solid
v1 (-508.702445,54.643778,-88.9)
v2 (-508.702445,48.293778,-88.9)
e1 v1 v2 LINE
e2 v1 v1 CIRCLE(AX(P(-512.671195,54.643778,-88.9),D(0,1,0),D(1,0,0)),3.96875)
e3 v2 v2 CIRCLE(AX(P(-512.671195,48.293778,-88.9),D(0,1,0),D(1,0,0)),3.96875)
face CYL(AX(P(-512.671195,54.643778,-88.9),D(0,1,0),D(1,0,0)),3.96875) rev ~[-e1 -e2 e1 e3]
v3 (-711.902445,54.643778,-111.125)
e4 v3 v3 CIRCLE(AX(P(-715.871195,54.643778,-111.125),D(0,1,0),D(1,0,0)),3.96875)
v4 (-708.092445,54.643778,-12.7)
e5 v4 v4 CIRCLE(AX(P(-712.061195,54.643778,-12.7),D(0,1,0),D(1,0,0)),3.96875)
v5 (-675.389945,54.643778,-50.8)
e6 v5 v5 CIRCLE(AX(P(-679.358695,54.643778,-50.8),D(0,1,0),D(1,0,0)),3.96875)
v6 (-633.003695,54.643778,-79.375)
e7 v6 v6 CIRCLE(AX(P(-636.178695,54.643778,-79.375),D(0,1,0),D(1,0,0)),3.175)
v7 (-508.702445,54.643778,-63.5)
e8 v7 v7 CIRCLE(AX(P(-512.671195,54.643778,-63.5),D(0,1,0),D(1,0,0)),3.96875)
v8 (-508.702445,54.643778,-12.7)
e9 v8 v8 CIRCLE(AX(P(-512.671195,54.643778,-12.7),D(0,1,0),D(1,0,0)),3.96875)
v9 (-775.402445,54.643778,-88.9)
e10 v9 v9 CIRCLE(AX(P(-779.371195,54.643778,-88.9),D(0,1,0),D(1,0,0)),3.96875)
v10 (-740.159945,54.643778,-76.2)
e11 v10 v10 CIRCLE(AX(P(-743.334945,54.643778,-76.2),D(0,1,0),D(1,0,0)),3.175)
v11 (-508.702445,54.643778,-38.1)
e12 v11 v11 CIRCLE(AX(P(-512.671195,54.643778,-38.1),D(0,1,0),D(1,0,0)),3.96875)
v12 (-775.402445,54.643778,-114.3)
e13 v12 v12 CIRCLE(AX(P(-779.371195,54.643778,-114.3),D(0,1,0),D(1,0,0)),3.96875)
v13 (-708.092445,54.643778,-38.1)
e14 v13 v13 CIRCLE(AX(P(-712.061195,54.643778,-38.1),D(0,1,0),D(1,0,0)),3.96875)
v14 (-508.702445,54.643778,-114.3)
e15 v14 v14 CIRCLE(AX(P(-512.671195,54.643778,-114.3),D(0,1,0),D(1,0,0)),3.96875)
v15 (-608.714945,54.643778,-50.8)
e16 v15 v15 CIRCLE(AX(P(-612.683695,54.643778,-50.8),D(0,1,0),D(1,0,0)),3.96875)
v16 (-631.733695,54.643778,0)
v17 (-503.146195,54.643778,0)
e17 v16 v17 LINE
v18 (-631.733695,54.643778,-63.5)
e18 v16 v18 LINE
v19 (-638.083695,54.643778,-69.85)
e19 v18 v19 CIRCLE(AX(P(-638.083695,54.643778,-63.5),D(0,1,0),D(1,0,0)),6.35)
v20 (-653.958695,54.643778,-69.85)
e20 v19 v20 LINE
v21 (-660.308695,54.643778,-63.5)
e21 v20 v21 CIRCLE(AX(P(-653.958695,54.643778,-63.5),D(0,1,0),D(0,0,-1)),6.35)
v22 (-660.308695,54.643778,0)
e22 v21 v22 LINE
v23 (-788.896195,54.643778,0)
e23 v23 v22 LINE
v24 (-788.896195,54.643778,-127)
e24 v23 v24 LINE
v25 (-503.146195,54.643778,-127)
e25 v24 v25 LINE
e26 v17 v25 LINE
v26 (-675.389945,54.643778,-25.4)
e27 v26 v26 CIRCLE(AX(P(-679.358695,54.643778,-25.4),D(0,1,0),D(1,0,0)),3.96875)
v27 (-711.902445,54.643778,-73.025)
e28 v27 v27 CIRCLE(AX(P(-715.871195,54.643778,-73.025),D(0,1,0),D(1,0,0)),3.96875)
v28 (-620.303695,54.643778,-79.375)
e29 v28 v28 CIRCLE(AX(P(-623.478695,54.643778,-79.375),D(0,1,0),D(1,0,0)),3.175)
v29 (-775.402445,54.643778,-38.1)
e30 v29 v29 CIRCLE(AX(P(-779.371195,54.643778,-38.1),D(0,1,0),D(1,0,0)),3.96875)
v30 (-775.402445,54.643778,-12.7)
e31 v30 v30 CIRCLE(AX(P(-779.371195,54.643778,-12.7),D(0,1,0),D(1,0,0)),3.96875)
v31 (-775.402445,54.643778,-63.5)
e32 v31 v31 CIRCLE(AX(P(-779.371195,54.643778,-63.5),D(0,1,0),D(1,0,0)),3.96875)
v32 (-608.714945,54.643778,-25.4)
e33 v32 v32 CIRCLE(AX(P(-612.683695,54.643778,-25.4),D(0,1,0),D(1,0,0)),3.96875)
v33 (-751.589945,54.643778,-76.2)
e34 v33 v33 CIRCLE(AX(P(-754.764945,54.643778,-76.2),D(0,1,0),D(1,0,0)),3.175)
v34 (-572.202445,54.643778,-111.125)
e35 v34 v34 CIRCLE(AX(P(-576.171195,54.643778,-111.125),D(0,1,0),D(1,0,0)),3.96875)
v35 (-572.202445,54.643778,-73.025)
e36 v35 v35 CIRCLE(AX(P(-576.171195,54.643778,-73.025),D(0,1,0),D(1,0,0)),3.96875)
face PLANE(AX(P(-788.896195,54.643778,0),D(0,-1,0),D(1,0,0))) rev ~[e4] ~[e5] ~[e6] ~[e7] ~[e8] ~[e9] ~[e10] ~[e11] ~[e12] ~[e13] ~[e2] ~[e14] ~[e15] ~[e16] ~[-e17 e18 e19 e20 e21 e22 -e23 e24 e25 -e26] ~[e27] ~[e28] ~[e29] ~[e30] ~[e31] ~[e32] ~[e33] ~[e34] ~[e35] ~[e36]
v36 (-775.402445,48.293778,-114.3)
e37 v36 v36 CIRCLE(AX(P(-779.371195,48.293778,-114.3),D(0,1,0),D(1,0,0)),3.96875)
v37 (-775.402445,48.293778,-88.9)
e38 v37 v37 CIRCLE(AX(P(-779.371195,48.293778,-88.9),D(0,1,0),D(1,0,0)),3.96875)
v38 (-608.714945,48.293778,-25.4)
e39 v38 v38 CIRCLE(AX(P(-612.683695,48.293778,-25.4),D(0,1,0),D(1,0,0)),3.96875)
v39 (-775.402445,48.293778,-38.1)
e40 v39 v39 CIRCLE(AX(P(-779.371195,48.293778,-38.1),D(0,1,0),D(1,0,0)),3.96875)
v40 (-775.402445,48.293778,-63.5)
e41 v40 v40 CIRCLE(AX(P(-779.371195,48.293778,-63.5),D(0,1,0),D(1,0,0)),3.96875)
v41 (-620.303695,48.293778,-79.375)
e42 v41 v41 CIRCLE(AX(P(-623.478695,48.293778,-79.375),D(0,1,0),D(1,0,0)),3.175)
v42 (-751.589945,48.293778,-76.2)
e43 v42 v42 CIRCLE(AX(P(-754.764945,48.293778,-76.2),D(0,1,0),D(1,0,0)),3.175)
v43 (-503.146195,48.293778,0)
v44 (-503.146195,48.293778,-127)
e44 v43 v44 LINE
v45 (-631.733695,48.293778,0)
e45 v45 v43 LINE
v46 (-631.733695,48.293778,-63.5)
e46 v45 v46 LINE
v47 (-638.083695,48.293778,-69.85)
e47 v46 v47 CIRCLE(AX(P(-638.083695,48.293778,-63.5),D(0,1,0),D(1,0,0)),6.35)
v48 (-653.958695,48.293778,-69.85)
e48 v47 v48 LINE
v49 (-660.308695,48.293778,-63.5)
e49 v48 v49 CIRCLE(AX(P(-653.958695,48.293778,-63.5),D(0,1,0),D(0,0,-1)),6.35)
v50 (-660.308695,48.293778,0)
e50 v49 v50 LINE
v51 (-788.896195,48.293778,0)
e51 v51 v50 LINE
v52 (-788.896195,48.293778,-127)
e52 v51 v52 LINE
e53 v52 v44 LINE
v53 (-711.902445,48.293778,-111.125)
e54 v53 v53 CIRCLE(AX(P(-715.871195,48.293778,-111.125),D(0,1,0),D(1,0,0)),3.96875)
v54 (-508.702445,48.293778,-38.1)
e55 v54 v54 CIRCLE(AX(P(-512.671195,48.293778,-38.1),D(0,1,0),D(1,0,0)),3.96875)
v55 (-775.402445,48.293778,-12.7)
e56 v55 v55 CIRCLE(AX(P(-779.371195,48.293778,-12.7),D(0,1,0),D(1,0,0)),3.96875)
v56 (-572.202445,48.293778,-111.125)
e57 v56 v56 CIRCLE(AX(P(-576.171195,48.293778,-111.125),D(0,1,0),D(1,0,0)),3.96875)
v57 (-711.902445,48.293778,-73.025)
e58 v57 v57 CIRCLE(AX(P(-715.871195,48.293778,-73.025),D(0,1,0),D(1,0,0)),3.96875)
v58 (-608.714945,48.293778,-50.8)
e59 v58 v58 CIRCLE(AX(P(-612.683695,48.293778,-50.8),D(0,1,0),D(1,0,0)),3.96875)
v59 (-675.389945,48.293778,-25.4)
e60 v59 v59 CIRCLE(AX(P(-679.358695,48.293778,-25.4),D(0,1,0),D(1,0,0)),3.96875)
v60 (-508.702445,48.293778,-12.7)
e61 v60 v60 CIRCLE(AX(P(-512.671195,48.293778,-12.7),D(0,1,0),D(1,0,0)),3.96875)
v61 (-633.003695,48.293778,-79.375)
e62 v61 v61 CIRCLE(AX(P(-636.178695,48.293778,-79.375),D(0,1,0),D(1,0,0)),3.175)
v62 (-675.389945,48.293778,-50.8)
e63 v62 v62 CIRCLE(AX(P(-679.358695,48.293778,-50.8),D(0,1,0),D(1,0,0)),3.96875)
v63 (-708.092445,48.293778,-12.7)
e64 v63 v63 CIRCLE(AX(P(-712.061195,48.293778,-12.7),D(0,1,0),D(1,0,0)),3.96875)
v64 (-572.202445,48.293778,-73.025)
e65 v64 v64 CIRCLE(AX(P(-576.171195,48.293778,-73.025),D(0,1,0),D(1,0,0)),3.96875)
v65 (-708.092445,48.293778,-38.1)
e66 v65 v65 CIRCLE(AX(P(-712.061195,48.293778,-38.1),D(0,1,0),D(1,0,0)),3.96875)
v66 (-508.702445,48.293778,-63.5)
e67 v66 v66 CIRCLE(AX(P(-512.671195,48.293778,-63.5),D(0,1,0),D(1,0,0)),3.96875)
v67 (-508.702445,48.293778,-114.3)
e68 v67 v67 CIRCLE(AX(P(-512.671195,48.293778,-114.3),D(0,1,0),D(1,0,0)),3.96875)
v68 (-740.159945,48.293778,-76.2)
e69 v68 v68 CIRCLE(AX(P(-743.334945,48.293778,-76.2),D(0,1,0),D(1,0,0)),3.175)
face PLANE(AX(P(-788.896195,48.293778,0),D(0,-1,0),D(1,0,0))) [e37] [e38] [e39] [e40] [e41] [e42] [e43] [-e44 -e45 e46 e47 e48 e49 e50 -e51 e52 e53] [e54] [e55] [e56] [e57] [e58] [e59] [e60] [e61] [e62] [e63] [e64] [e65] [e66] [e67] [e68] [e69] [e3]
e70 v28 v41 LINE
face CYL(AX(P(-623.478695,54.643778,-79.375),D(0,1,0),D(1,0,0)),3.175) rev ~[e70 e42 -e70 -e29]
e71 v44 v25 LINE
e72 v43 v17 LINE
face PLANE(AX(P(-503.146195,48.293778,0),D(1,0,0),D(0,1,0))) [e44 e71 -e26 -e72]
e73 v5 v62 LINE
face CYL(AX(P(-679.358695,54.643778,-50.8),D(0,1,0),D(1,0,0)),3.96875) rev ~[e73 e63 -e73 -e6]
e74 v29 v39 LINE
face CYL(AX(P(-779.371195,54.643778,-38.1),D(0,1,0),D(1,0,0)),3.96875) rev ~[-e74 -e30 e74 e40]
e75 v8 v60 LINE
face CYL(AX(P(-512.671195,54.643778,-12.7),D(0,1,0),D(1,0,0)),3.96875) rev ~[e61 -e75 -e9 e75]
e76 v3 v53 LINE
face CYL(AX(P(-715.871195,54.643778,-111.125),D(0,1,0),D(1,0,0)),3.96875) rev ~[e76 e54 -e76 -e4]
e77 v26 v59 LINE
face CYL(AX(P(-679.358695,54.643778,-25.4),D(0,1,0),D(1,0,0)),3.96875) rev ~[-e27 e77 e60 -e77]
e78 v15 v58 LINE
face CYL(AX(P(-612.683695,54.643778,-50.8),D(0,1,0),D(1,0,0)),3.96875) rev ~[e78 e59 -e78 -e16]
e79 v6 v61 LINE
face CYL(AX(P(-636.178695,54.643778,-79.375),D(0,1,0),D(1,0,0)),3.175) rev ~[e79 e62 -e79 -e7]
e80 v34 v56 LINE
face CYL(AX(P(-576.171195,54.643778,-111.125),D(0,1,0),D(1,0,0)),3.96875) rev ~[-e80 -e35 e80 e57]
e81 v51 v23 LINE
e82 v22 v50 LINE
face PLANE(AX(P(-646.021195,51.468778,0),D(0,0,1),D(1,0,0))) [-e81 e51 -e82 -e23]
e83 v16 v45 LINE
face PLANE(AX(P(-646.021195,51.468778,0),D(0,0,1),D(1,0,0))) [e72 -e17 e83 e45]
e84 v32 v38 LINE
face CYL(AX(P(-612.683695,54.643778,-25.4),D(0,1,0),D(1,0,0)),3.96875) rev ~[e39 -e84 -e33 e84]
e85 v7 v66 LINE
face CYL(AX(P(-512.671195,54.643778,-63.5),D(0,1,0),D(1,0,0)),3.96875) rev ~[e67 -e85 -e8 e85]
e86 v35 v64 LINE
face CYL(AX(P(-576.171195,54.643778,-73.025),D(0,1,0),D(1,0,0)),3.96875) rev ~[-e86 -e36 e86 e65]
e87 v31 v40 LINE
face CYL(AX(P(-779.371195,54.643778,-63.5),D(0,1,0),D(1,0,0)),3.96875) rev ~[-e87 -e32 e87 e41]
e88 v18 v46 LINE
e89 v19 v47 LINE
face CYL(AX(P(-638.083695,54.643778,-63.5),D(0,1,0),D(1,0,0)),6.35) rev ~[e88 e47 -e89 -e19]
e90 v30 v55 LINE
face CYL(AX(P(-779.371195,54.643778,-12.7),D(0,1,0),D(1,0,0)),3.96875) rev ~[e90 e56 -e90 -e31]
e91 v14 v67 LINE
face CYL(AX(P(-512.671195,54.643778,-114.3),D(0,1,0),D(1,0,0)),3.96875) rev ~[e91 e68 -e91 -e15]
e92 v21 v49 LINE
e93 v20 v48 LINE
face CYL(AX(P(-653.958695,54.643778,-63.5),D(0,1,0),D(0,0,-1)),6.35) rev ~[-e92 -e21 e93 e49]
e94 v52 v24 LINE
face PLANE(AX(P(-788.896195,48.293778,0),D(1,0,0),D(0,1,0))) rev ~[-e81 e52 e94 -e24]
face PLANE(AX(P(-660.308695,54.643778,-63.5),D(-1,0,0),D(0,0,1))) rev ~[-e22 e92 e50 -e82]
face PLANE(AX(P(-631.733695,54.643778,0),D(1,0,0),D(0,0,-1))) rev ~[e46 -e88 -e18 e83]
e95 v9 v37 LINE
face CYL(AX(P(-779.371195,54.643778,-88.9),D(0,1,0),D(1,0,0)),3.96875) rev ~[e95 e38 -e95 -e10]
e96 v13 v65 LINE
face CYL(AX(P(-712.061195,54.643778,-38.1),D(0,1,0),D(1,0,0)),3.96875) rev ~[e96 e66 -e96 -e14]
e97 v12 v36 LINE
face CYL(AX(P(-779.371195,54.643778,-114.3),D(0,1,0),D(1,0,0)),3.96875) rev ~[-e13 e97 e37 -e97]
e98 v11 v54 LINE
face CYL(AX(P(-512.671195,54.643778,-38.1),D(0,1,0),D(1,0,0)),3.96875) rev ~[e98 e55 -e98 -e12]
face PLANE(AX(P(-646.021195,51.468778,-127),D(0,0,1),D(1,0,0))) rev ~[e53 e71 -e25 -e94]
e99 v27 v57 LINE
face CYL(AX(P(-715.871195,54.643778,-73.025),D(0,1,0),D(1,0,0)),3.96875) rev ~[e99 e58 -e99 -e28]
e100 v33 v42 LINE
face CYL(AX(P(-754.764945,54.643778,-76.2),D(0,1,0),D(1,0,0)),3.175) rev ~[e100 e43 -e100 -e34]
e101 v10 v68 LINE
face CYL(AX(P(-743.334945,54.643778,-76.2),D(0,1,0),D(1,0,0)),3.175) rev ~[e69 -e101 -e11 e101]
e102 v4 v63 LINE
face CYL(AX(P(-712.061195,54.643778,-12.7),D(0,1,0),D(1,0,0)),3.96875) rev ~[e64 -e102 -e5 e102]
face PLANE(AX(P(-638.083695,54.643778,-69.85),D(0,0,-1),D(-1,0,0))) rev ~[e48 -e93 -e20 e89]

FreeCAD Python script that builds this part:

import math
import FreeCAD as App
import Part
import Sketcher

V = App.Vector
Q = App.Units.Quantity

doc = App.newDocument("Part")
body = doc.addObject("PartDesign::Body", "Body")

# Sketch on XY plane
sketch1 = body.newObject("Sketcher::SketchObject", "Sketch")
sketch1.AttachmentSupport = (doc.getObject("XY_Plane"), [""])
sketch1.MapMode = "FlatFace"
sketch1.addGeometry(Part.LineSegment(V(-788.896195, 54.643778, 0), V(-788.896195, 48.293778, 0)), False)
sketch1.addGeometry(Part.LineSegment(V(-788.896195, 48.293778, 0), V(-503.146195, 48.293778, 0)), False)
sketch1.addGeometry(Part.LineSegment(V(-503.146195, 48.293778, 0), V(-503.146195, 54.643778, 0)), False)
sketch1.addGeometry(Part.LineSegment(V(-503.146195, 54.643778, 0), V(-788.896195, 54.643778, 0)), False)
sketch1.addConstraint(Sketcher.Constraint("Coincident", 0, 2, 1, 1))
sketch1.addConstraint(Sketcher.Constraint("Coincident", 1, 2, 2, 1))
sketch1.addConstraint(Sketcher.Constraint("Coincident", 2, 2, 3, 1))
sketch1.addConstraint(Sketcher.Constraint("Coincident", 3, 2, 0, 1))
sketch1.addConstraint(Sketcher.Constraint("Vertical", 0))
sketch1.addConstraint(Sketcher.Constraint("Horizontal", 1))
sketch1.addConstraint(Sketcher.Constraint("Vertical", 2))
sketch1.addConstraint(Sketcher.Constraint("Horizontal", 3))
sketch1.addConstraint(Sketcher.Constraint("DistanceX", 1, 1, 1, 2, Q("11.25 in")))
sketch1.addConstraint(Sketcher.Constraint("DistanceY", 0, 2, 0, 1, Q("0.25 in")))
sketch1.addConstraint(Sketcher.Constraint("DistanceY", -1, 1, 0, 2, Q("48.293778 mm")))
sketch1.addConstraint(Sketcher.Constraint("DistanceX", 0, 2, -1, 1, Q("788.896195 mm")))
pad1 = body.newObject("PartDesign::Pad", "Pad")
pad1.Profile = sketch1
pad1.Length = Q("5 in")
pad1.Reversed = True

# Sketch on XZ plane
sketch2 = body.newObject("Sketcher::SketchObject", "Sketch001")
sketch2.AttachmentSupport = (doc.getObject("XZ_Plane"), [""])
sketch2.MapMode = "FlatFace"
sketch2.AttachmentOffset = App.Placement(V(0, 0, -54.643778), App.Rotation())
sketch2.addGeometry(Part.LineSegment(V(-638.083695, -69.85, 0), V(-653.958695, -69.85, 0)), False)
sketch2.addGeometry(Part.ArcOfCircle(Part.Circle(V(-653.958695, -63.5, 0), V(0, 0, 1), 6.35), math.radians(180), math.radians(270)), False)
sketch2.addGeometry(Part.LineSegment(V(-660.308695, -63.5, 0), V(-660.308695, 0, 0)), False)
sketch2.addGeometry(Part.LineSegment(V(-660.308695, 0, 0), V(-631.733695, 0, 0)), False)
sketch2.addGeometry(Part.LineSegment(V(-631.733695, 0, 0), V(-631.733695, -63.5, 0)), False)
sketch2.addGeometry(Part.ArcOfCircle(Part.Circle(V(-638.083695, -63.5, 0), V(0, 0, 1), 6.35), math.radians(-90), math.radians(0)), False)
sketch2.addConstraint(Sketcher.Constraint("Tangent", 0, 2, 1, 2))
sketch2.addConstraint(Sketcher.Constraint("Tangent", 1, 1, 2, 1))
sketch2.addConstraint(Sketcher.Constraint("Coincident", 2, 2, 3, 1))
sketch2.addConstraint(Sketcher.Constraint("Coincident", 3, 2, 4, 1))
sketch2.addConstraint(Sketcher.Constraint("Tangent", 4, 2, 5, 2))
sketch2.addConstraint(Sketcher.Constraint("Tangent", 5, 1, 0, 1))
sketch2.addConstraint(Sketcher.Constraint("Horizontal", 0))
sketch2.addConstraint(Sketcher.Constraint("Vertical", 2))
sketch2.addConstraint(Sketcher.Constraint("Horizontal", 3))
sketch2.addConstraint(Sketcher.Constraint("Vertical", 4))
sketch2.addConstraint(Sketcher.Constraint("Equal", 1, 5))
sketch2.addConstraint(Sketcher.Constraint("PointOnObject", 2, 2, -1))
sketch2.addConstraint(Sketcher.Constraint("Radius", 1, Q("0.25 in")))
sketch2.addConstraint(Sketcher.Constraint("DistanceY", 2, 1, 2, 2, Q("2.5 in")))
sketch2.addConstraint(Sketcher.Constraint("DistanceX", 0, 2, 0, 1, Q("0.625 in")))
sketch2.addConstraint(Sketcher.Constraint("DistanceX", 1, 3, -1, 1, Q("653.958695 mm")))
pocket1 = body.newObject("PartDesign::Pocket", "Pocket")
pocket1.Profile = sketch2
pocket1.Length = Q("0.25 in")
pocket1.Reversed = True

# Sketch on XZ plane
sketch3 = body.newObject("Sketcher::SketchObject", "Sketch002")
sketch3.AttachmentSupport = (doc.getObject("XZ_Plane"), [""])
sketch3.MapMode = "FlatFace"
sketch3.AttachmentOffset = App.Placement(V(0, 0, -54.643778), App.Rotation())
sketch3.addGeometry(Part.Circle(V(-612.683695, -25.4, 0), V(0, 0, 1), 3.96875), False)
sketch3.addConstraint(Sketcher.Constraint("Diameter", 0, Q("0.3125 in")))
sketch3.addConstraint(Sketcher.Constraint("DistanceY", 0, 3, -1, 1, Q("1 in")))
sketch3.addConstraint(Sketcher.Constraint("DistanceX", 0, 3, -1, 1, Q("612.683695 mm")))
pocket2 = body.newObject("PartDesign::Pocket", "Pocket001")
pocket2.Profile = sketch3
pocket2.Type = "UpToFirst"
pocket2.Reversed = True

# Sketch on XZ plane
sketch4 = body.newObject("Sketcher::SketchObject", "Sketch003")
sketch4.AttachmentSupport = (doc.getObject("XZ_Plane"), [""])
sketch4.MapMode = "FlatFace"
sketch4.AttachmentOffset = App.Placement(V(0, 0, -54.643778), App.Rotation())
sketch4.addGeometry(Part.Circle(V(-612.683695, -50.8, 0), V(0, 0, 1), 3.96875), False)
sketch4.addConstraint(Sketcher.Constraint("Diameter", 0, Q("0.3125 in")))
sketch4.addConstraint(Sketcher.Constraint("DistanceY", 0, 3, -1, 1, Q("2 in")))
sketch4.addConstraint(Sketcher.Constraint("DistanceX", 0, 3, -1, 1, Q("612.683695 mm")))
pocket3 = body.newObject("PartDesign::Pocket", "Pocket002")
pocket3.Profile = sketch4
pocket3.Type = "UpToFirst"
pocket3.Reversed = True

# Sketch on XZ plane
sketch5 = body.newObject("Sketcher::SketchObject", "Sketch004")
sketch5.AttachmentSupport = (doc.getObject("XZ_Plane"), [""])
sketch5.MapMode = "FlatFace"
sketch5.AttachmentOffset = App.Placement(V(0, 0, -54.643778), App.Rotation())
sketch5.addGeometry(Part.Circle(V(-679.358695, -50.8, 0), V(0, 0, 1), 3.96875), False)
sketch5.addConstraint(Sketcher.Constraint("Diameter", 0, Q("0.3125 in")))
sketch5.addConstraint(Sketcher.Constraint("DistanceY", 0, 3, -1, 1, Q("2 in")))
sketch5.addConstraint(Sketcher.Constraint("DistanceX", 0, 3, -1, 1, Q("679.358695 mm")))
pocket4 = body.newObject("PartDesign::Pocket", "Pocket003")
pocket4.Profile = sketch5
pocket4.Type = "UpToFirst"
pocket4.Reversed = True

# Sketch on XZ plane
sketch6 = body.newObject("Sketcher::SketchObject", "Sketch005")
sketch6.AttachmentSupport = (doc.getObject("XZ_Plane"), [""])
sketch6.MapMode = "FlatFace"
sketch6.AttachmentOffset = App.Placement(V(0, 0, -54.643778), App.Rotation())
sketch6.addGeometry(Part.Circle(V(-679.358695, -25.4, 0), V(0, 0, 1), 3.96875), False)
sketch6.addConstraint(Sketcher.Constraint("Diameter", 0, Q("0.3125 in")))
sketch6.addConstraint(Sketcher.Constraint("DistanceY", 0, 3, -1, 1, Q("1 in")))
sketch6.addConstraint(Sketcher.Constraint("DistanceX", 0, 3, -1, 1, Q("679.358695 mm")))
pocket5 = body.newObject("PartDesign::Pocket", "Pocket004")
pocket5.Profile = sketch6
pocket5.Type = "UpToFirst"
pocket5.Reversed = True

# Sketch on XZ plane
sketch7 = body.newObject("Sketcher::SketchObject", "Sketch006")
sketch7.AttachmentSupport = (doc.getObject("XZ_Plane"), [""])
sketch7.MapMode = "FlatFace"
sketch7.AttachmentOffset = App.Placement(V(0, 0, -54.643778), App.Rotation())
sketch7.addGeometry(Part.Circle(V(-712.061195, -12.7, 0), V(0, 0, 1), 3.96875), False)
sketch7.addConstraint(Sketcher.Constraint("Diameter", 0, Q("0.3125 in")))
sketch7.addConstraint(Sketcher.Constraint("DistanceY", 0, 3, -1, 1, Q("0.5 in")))
sketch7.addConstraint(Sketcher.Constraint("DistanceX", 0, 3, -1, 1, Q("712.061195 mm")))
pocket6 = body.newObject("PartDesign::Pocket", "Pocket005")
pocket6.Profile = sketch7
pocket6.Type = "UpToFirst"
pocket6.Reversed = True

# Sketch on XZ plane
sketch8 = body.newObject("Sketcher::SketchObject", "Sketch007")
sketch8.AttachmentSupport = (doc.getObject("XZ_Plane"), [""])
sketch8.MapMode = "FlatFace"
sketch8.AttachmentOffset = App.Placement(V(0, 0, -54.643778), App.Rotation())
sketch8.addGeometry(Part.Circle(V(-712.061195, -38.1, 0), V(0, 0, 1), 3.96875), False)
sketch8.addConstraint(Sketcher.Constraint("Diameter", 0, Q("0.3125 in")))
sketch8.addConstraint(Sketcher.Constraint("DistanceY", 0, 3, -1, 1, Q("1.5 in")))
sketch8.addConstraint(Sketcher.Constraint("DistanceX", 0, 3, -1, 1, Q("712.061195 mm")))
pocket7 = body.newObject("PartDesign::Pocket", "Pocket006")
pocket7.Profile = sketch8
pocket7.Type = "UpToFirst"
pocket7.Reversed = True

# Sketch on XZ plane
sketch9 = body.newObject("Sketcher::SketchObject", "Sketch008")
sketch9.AttachmentSupport = (doc.getObject("XZ_Plane"), [""])
sketch9.MapMode = "FlatFace"
sketch9.AttachmentOffset = App.Placement(V(0, 0, -54.643778), App.Rotation())
sketch9.addGeometry(Part.Circle(V(-512.671195, -12.7, 0), V(0, 0, 1), 3.96875), False)
sketch9.addConstraint(Sketcher.Constraint("Diameter", 0, Q("0.3125 in")))
sketch9.addConstraint(Sketcher.Constraint("DistanceY", 0, 3, -1, 1, Q("0.5 in")))
sketch9.addConstraint(Sketcher.Constraint("DistanceX", 0, 3, -1, 1, Q("512.671195 mm")))
pocket8 = body.newObject("PartDesign::Pocket", "Pocket007")
pocket8.Profile = sketch9
pocket8.Type = "UpToFirst"
pocket8.Reversed = True

# Sketch on XZ plane
sketch10 = body.newObject("Sketcher::SketchObject", "Sketch009")
sketch10.AttachmentSupport = (doc.getObject("XZ_Plane"), [""])
sketch10.MapMode = "FlatFace"
sketch10.AttachmentOffset = App.Placement(V(0, 0, -54.643778), App.Rotation())
sketch10.addGeometry(Part.Circle(V(-512.671195, -38.1, 0), V(0, 0, 1), 3.96875), False)
sketch10.addConstraint(Sketcher.Constraint("Diameter", 0, Q("0.3125 in")))
sketch10.addConstraint(Sketcher.Constraint("DistanceY", 0, 3, -1, 1, Q("1.5 in")))
sketch10.addConstraint(Sketcher.Constraint("DistanceX", 0, 3, -1, 1, Q("512.671195 mm")))
pocket9 = body.newObject("PartDesign::Pocket", "Pocket008")
pocket9.Profile = sketch10
pocket9.Type = "UpToFirst"
pocket9.Reversed = True

# Sketch on XZ plane
sketch11 = body.newObject("Sketcher::SketchObject", "Sketch010")
sketch11.AttachmentSupport = (doc.getObject("XZ_Plane"), [""])
sketch11.MapMode = "FlatFace"
sketch11.AttachmentOffset = App.Placement(V(0, 0, -54.643778), App.Rotation())
sketch11.addGeometry(Part.Circle(V(-512.671195, -63.5, 0), V(0, 0, 1), 3.96875), False)
sketch11.addConstraint(Sketcher.Constraint("Diameter", 0, Q("0.3125 in")))
sketch11.addConstraint(Sketcher.Constraint("DistanceY", 0, 3, -1, 1, Q("2.5 in")))
sketch11.addConstraint(Sketcher.Constraint("DistanceX", 0, 3, -1, 1, Q("512.671195 mm")))
pocket10 = body.newObject("PartDesign::Pocket", "Pocket009")
pocket10.Profile = sketch11
pocket10.Type = "UpToFirst"
pocket10.Reversed = True

# Sketch on XZ plane
sketch12 = body.newObject("Sketcher::SketchObject", "Sketch011")
sketch12.AttachmentSupport = (doc.getObject("XZ_Plane"), [""])
sketch12.MapMode = "FlatFace"
sketch12.AttachmentOffset = App.Placement(V(0, 0, -54.643778), App.Rotation())
sketch12.addGeometry(Part.Circle(V(-512.671195, -88.9, 0), V(0, 0, 1), 3.96875), False)
sketch12.addConstraint(Sketcher.Constraint("Diameter", 0, Q("0.3125 in")))
sketch12.addConstraint(Sketcher.Constraint("DistanceY", 0, 3, -1, 1, Q("3.5 in")))
sketch12.addConstraint(Sketcher.Constraint("DistanceX", 0, 3, -1, 1, Q("512.671195 mm")))
pocket11 = body.newObject("PartDesign::Pocket", "Pocket010")
pocket11.Profile = sketch12
pocket11.Type = "UpToFirst"
pocket11.Reversed = True

# Sketch on XZ plane
sketch13 = body.newObject("Sketcher::SketchObject", "Sketch012")
sketch13.AttachmentSupport = (doc.getObject("XZ_Plane"), [""])
sketch13.MapMode = "FlatFace"
sketch13.AttachmentOffset = App.Placement(V(0, 0, -54.643778), App.Rotation())
sketch13.addGeometry(Part.Circle(V(-512.671195, -114.3, 0), V(0, 0, 1), 3.96875), False)
sketch13.addConstraint(Sketcher.Constraint("Diameter", 0, Q("0.3125 in")))
sketch13.addConstraint(Sketcher.Constraint("DistanceY", 0, 3, -1, 1, Q("4.5 in")))
sketch13.addConstraint(Sketcher.Constraint("DistanceX", 0, 3, -1, 1, Q("512.671195 mm")))
pocket12 = body.newObject("PartDesign::Pocket", "Pocket011")
pocket12.Profile = sketch13
pocket12.Type = "UpToFirst"
pocket12.Reversed = True

# Sketch on XZ plane
sketch14 = body.newObject("Sketcher::SketchObject", "Sketch013")
sketch14.AttachmentSupport = (doc.getObject("XZ_Plane"), [""])
sketch14.MapMode = "FlatFace"
sketch14.AttachmentOffset = App.Placement(V(0, 0, -54.643778), App.Rotation())
sketch14.addGeometry(Part.Circle(V(-779.371195, -88.9, 0), V(0, 0, 1), 3.96875), False)
sketch14.addConstraint(Sketcher.Constraint("Diameter", 0, Q("0.3125 in")))
sketch14.addConstraint(Sketcher.Constraint("DistanceY", 0, 3, -1, 1, Q("3.5 in")))
sketch14.addConstraint(Sketcher.Constraint("DistanceX", 0, 3, -1, 1, Q("779.371195 mm")))
pocket13 = body.newObject("PartDesign::Pocket", "Pocket012")
pocket13.Profile = sketch14
pocket13.Type = "UpToFirst"
pocket13.Reversed = True

# Sketch on XZ plane
sketch15 = body.newObject("Sketcher::SketchObject", "Sketch014")
sketch15.AttachmentSupport = (doc.getObject("XZ_Plane"), [""])
sketch15.MapMode = "FlatFace"
sketch15.AttachmentOffset = App.Placement(V(0, 0, -54.643778), App.Rotation())
sketch15.addGeometry(Part.Circle(V(-779.371195, -114.3, 0), V(0, 0, 1), 3.96875), False)
sketch15.addConstraint(Sketcher.Constraint("Diameter", 0, Q("0.3125 in")))
sketch15.addConstraint(Sketcher.Constraint("DistanceY", 0, 3, -1, 1, Q("4.5 in")))
sketch15.addConstraint(Sketcher.Constraint("DistanceX", 0, 3, -1, 1, Q("779.371195 mm")))
pocket14 = body.newObject("PartDesign::Pocket", "Pocket013")
pocket14.Profile = sketch15
pocket14.Type = "UpToFirst"
pocket14.Reversed = True

# Sketch on XZ plane
sketch16 = body.newObject("Sketcher::SketchObject", "Sketch015")
sketch16.AttachmentSupport = (doc.getObject("XZ_Plane"), [""])
sketch16.MapMode = "FlatFace"
sketch16.AttachmentOffset = App.Placement(V(0, 0, -54.643778), App.Rotation())
sketch16.addGeometry(Part.Circle(V(-779.371195, -63.5, 0), V(0, 0, 1), 3.96875), False)
sketch16.addConstraint(Sketcher.Constraint("Diameter", 0, Q("0.3125 in")))
sketch16.addConstraint(Sketcher.Constraint("DistanceY", 0, 3, -1, 1, Q("2.5 in")))
sketch16.addConstraint(Sketcher.Constraint("DistanceX", 0, 3, -1, 1, Q("779.371195 mm")))
pocket15 = body.newObject("PartDesign::Pocket", "Pocket014")
pocket15.Profile = sketch16
pocket15.Type = "UpToFirst"
pocket15.Reversed = True

# Sketch on XZ plane
sketch17 = body.newObject("Sketcher::SketchObject", "Sketch016")
sketch17.AttachmentSupport = (doc.getObject("XZ_Plane"), [""])
sketch17.MapMode = "FlatFace"
sketch17.AttachmentOffset = App.Placement(V(0, 0, -54.643778), App.Rotation())
sketch17.addGeometry(Part.Circle(V(-779.371195, -38.1, 0), V(0, 0, 1), 3.96875), False)
sketch17.addConstraint(Sketcher.Constraint("Diameter", 0, Q("0.3125 in")))
sketch17.addConstraint(Sketcher.Constraint("DistanceY", 0, 3, -1, 1, Q("1.5 in")))
sketch17.addConstraint(Sketcher.Constraint("DistanceX", 0, 3, -1, 1, Q("779.371195 mm")))
pocket16 = body.newObject("PartDesign::Pocket", "Pocket015")
pocket16.Profile = sketch17
pocket16.Type = "UpToFirst"
pocket16.Reversed = True

# Sketch on XZ plane
sketch18 = body.newObject("Sketcher::SketchObject", "Sketch017")
sketch18.AttachmentSupport = (doc.getObject("XZ_Plane"), [""])
sketch18.MapMode = "FlatFace"
sketch18.AttachmentOffset = App.Placement(V(0, 0, -54.643778), App.Rotation())
sketch18.addGeometry(Part.Circle(V(-779.371195, -12.7, 0), V(0, 0, 1), 3.96875), False)
sketch18.addConstraint(Sketcher.Constraint("Diameter", 0, Q("0.3125 in")))
sketch18.addConstraint(Sketcher.Constraint("DistanceY", 0, 3, -1, 1, Q("0.5 in")))
sketch18.addConstraint(Sketcher.Constraint("DistanceX", 0, 3, -1, 1, Q("779.371195 mm")))
pocket17 = body.newObject("PartDesign::Pocket", "Pocket016")
pocket17.Profile = sketch18
pocket17.Type = "UpToFirst"
pocket17.Reversed = True

# Sketch on XZ plane
sketch19 = body.newObject("Sketcher::SketchObject", "Sketch018")
sketch19.AttachmentSupport = (doc.getObject("XZ_Plane"), [""])
sketch19.MapMode = "FlatFace"
sketch19.AttachmentOffset = App.Placement(V(0, 0, -54.643778), App.Rotation())
sketch19.addGeometry(Part.Circle(V(-576.171195, -73.025, 0), V(0, 0, 1), 3.96875), False)
sketch19.addConstraint(Sketcher.Constraint("Diameter", 0, Q("0.3125 in")))
sketch19.addConstraint(Sketcher.Constraint("DistanceY", 0, 3, -1, 1, Q("2.875 in")))
sketch19.addConstraint(Sketcher.Constraint("DistanceX", 0, 3, -1, 1, Q("576.171195 mm")))
pocket18 = body.newObject("PartDesign::Pocket", "Pocket017")
pocket18.Profile = sketch19
pocket18.Type = "UpToFirst"
pocket18.Reversed = True

# Sketch on XZ plane
sketch20 = body.newObject("Sketcher::SketchObject", "Sketch019")
sketch20.AttachmentSupport = (doc.getObject("XZ_Plane"), [""])
sketch20.MapMode = "FlatFace"
sketch20.AttachmentOffset = App.Placement(V(0, 0, -54.643778), App.Rotation())
sketch20.addGeometry(Part.Circle(V(-576.171195, -111.125, 0), V(0, 0, 1), 3.96875), False)
sketch20.addConstraint(Sketcher.Constraint("Diameter", 0, Q("0.3125 in")))
sketch20.addConstraint(Sketcher.Constraint("DistanceY", 0, 3, -1, 1, Q("4.375 in")))
sketch20.addConstraint(Sketcher.Constraint("DistanceX", 0, 3, -1, 1, Q("576.171195 mm")))
pocket19 = body.newObject("PartDesign::Pocket", "Pocket018")
pocket19.Profile = sketch20
pocket19.Type = "UpToFirst"
pocket19.Reversed = True

# Sketch on XZ plane
sketch21 = body.newObject("Sketcher::SketchObject", "Sketch020")
sketch21.AttachmentSupport = (doc.getObject("XZ_Plane"), [""])
sketch21.MapMode = "FlatFace"
sketch21.AttachmentOffset = App.Placement(V(0, 0, -54.643778), App.Rotation())
sketch21.addGeometry(Part.Circle(V(-715.871195, -111.125, 0), V(0, 0, 1), 3.96875), False)
sketch21.addConstraint(Sketcher.Constraint("Diameter", 0, Q("0.3125 in")))
sketch21.addConstraint(Sketcher.Constraint("DistanceY", 0, 3, -1, 1, Q("4.375 in")))
sketch21.addConstraint(Sketcher.Constraint("DistanceX", 0, 3, -1, 1, Q("715.871195 mm")))
pocket20 = body.newObject("PartDesign::Pocket", "Pocket019")
pocket20.Profile = sketch21
pocket20.Type = "UpToFirst"
pocket20.Reversed = True

# Sketch on XZ plane
sketch22 = body.newObject("Sketcher::SketchObject", "Sketch021")
sketch22.AttachmentSupport = (doc.getObject("XZ_Plane"), [""])
sketch22.MapMode = "FlatFace"
sketch22.AttachmentOffset = App.Placement(V(0, 0, -54.643778), App.Rotation())
sketch22.addGeometry(Part.Circle(V(-715.871195, -73.025, 0), V(0, 0, 1), 3.96875), False)
sketch22.addConstraint(Sketcher.Constraint("Diameter", 0, Q("0.3125 in")))
sketch22.addConstraint(Sketcher.Constraint("DistanceY", 0, 3, -1, 1, Q("2.875 in")))
sketch22.addConstraint(Sketcher.Constraint("DistanceX", 0, 3, -1, 1, Q("715.871195 mm")))
pocket21 = body.newObject("PartDesign::Pocket", "Pocket020")
pocket21.Profile = sketch22
pocket21.Type = "UpToFirst"
pocket21.Reversed = True

# Sketch on XZ plane
sketch23 = body.newObject("Sketcher::SketchObject", "Sketch022")
sketch23.AttachmentSupport = (doc.getObject("XZ_Plane"), [""])
sketch23.MapMode = "FlatFace"
sketch23.AttachmentOffset = App.Placement(V(0, 0, -54.643778), App.Rotation())
sketch23.addGeometry(Part.Circle(V(-754.764945, -76.2, 0), V(0, 0, 1), 3.175), False)
sketch23.addConstraint(Sketcher.Constraint("Diameter", 0, Q("0.25 in")))
sketch23.addConstraint(Sketcher.Constraint("DistanceY", 0, 3, -1, 1, Q("3 in")))
sketch23.addConstraint(Sketcher.Constraint("DistanceX", 0, 3, -1, 1, Q("754.764945 mm")))
pocket22 = body.newObject("PartDesign::Pocket", "Pocket021")
pocket22.Profile = sketch23
pocket22.Type = "UpToFirst"
pocket22.Reversed = True

# Sketch on XZ plane
sketch24 = body.newObject("Sketcher::SketchObject", "Sketch023")
sketch24.AttachmentSupport = (doc.getObject("XZ_Plane"), [""])
sketch24.MapMode = "FlatFace"
sketch24.AttachmentOffset = App.Placement(V(0, 0, -54.643778), App.Rotation())
sketch24.addGeometry(Part.Circle(V(-743.334945, -76.2, 0), V(0, 0, 1), 3.175), False)
sketch24.addConstraint(Sketcher.Constraint("Diameter", 0, Q("0.25 in")))
sketch24.addConstraint(Sketcher.Constraint("DistanceY", 0, 3, -1, 1, Q("3 in")))
sketch24.addConstraint(Sketcher.Constraint("DistanceX", 0, 3, -1, 1, Q("743.334945 mm")))
pocket23 = body.newObject("PartDesign::Pocket", "Pocket022")
pocket23.Profile = sketch24
pocket23.Type = "UpToFirst"
pocket23.Reversed = True

# Sketch on XZ plane
sketch25 = body.newObject("Sketcher::SketchObject", "Sketch024")
sketch25.AttachmentSupport = (doc.getObject("XZ_Plane"), [""])
sketch25.MapMode = "FlatFace"
sketch25.AttachmentOffset = App.Placement(V(0, 0, -54.643778), App.Rotation())
sketch25.addGeometry(Part.Circle(V(-636.178695, -79.375, 0), V(0, 0, 1), 3.175), False)
sketch25.addConstraint(Sketcher.Constraint("Diameter", 0, Q("0.25 in")))
sketch25.addConstraint(Sketcher.Constraint("DistanceY", 0, 3, -1, 1, Q("3.125 in")))
sketch25.addConstraint(Sketcher.Constraint("DistanceX", 0, 3, -1, 1, Q("636.178695 mm")))
pocket24 = body.newObject("PartDesign::Pocket", "Pocket023")
pocket24.Profile = sketch25
pocket24.Type = "UpToFirst"
pocket24.Reversed = True

# Sketch on XZ plane
sketch26 = body.newObject("Sketcher::SketchObject", "Sketch025")
sketch26.AttachmentSupport = (doc.getObject("XZ_Plane"), [""])
sketch26.MapMode = "FlatFace"
sketch26.AttachmentOffset = App.Placement(V(0, 0, -54.643778), App.Rotation())
sketch26.addGeometry(Part.Circle(V(-623.478695, -79.375, 0), V(0, 0, 1), 3.175), False)
sketch26.addConstraint(Sketcher.Constraint("Diameter", 0, Q("0.25 in")))
sketch26.addConstraint(Sketcher.Constraint("DistanceY", 0, 3, -1, 1, Q("3.125 in")))
sketch26.addConstraint(Sketcher.Constraint("DistanceX", 0, 3, -1, 1, Q("623.478695 mm")))
pocket25 = body.newObject("PartDesign::Pocket", "Pocket024")
pocket25.Profile = sketch26
pocket25.Type = "UpToFirst"
pocket25.Reversed = True

doc.recompute()
